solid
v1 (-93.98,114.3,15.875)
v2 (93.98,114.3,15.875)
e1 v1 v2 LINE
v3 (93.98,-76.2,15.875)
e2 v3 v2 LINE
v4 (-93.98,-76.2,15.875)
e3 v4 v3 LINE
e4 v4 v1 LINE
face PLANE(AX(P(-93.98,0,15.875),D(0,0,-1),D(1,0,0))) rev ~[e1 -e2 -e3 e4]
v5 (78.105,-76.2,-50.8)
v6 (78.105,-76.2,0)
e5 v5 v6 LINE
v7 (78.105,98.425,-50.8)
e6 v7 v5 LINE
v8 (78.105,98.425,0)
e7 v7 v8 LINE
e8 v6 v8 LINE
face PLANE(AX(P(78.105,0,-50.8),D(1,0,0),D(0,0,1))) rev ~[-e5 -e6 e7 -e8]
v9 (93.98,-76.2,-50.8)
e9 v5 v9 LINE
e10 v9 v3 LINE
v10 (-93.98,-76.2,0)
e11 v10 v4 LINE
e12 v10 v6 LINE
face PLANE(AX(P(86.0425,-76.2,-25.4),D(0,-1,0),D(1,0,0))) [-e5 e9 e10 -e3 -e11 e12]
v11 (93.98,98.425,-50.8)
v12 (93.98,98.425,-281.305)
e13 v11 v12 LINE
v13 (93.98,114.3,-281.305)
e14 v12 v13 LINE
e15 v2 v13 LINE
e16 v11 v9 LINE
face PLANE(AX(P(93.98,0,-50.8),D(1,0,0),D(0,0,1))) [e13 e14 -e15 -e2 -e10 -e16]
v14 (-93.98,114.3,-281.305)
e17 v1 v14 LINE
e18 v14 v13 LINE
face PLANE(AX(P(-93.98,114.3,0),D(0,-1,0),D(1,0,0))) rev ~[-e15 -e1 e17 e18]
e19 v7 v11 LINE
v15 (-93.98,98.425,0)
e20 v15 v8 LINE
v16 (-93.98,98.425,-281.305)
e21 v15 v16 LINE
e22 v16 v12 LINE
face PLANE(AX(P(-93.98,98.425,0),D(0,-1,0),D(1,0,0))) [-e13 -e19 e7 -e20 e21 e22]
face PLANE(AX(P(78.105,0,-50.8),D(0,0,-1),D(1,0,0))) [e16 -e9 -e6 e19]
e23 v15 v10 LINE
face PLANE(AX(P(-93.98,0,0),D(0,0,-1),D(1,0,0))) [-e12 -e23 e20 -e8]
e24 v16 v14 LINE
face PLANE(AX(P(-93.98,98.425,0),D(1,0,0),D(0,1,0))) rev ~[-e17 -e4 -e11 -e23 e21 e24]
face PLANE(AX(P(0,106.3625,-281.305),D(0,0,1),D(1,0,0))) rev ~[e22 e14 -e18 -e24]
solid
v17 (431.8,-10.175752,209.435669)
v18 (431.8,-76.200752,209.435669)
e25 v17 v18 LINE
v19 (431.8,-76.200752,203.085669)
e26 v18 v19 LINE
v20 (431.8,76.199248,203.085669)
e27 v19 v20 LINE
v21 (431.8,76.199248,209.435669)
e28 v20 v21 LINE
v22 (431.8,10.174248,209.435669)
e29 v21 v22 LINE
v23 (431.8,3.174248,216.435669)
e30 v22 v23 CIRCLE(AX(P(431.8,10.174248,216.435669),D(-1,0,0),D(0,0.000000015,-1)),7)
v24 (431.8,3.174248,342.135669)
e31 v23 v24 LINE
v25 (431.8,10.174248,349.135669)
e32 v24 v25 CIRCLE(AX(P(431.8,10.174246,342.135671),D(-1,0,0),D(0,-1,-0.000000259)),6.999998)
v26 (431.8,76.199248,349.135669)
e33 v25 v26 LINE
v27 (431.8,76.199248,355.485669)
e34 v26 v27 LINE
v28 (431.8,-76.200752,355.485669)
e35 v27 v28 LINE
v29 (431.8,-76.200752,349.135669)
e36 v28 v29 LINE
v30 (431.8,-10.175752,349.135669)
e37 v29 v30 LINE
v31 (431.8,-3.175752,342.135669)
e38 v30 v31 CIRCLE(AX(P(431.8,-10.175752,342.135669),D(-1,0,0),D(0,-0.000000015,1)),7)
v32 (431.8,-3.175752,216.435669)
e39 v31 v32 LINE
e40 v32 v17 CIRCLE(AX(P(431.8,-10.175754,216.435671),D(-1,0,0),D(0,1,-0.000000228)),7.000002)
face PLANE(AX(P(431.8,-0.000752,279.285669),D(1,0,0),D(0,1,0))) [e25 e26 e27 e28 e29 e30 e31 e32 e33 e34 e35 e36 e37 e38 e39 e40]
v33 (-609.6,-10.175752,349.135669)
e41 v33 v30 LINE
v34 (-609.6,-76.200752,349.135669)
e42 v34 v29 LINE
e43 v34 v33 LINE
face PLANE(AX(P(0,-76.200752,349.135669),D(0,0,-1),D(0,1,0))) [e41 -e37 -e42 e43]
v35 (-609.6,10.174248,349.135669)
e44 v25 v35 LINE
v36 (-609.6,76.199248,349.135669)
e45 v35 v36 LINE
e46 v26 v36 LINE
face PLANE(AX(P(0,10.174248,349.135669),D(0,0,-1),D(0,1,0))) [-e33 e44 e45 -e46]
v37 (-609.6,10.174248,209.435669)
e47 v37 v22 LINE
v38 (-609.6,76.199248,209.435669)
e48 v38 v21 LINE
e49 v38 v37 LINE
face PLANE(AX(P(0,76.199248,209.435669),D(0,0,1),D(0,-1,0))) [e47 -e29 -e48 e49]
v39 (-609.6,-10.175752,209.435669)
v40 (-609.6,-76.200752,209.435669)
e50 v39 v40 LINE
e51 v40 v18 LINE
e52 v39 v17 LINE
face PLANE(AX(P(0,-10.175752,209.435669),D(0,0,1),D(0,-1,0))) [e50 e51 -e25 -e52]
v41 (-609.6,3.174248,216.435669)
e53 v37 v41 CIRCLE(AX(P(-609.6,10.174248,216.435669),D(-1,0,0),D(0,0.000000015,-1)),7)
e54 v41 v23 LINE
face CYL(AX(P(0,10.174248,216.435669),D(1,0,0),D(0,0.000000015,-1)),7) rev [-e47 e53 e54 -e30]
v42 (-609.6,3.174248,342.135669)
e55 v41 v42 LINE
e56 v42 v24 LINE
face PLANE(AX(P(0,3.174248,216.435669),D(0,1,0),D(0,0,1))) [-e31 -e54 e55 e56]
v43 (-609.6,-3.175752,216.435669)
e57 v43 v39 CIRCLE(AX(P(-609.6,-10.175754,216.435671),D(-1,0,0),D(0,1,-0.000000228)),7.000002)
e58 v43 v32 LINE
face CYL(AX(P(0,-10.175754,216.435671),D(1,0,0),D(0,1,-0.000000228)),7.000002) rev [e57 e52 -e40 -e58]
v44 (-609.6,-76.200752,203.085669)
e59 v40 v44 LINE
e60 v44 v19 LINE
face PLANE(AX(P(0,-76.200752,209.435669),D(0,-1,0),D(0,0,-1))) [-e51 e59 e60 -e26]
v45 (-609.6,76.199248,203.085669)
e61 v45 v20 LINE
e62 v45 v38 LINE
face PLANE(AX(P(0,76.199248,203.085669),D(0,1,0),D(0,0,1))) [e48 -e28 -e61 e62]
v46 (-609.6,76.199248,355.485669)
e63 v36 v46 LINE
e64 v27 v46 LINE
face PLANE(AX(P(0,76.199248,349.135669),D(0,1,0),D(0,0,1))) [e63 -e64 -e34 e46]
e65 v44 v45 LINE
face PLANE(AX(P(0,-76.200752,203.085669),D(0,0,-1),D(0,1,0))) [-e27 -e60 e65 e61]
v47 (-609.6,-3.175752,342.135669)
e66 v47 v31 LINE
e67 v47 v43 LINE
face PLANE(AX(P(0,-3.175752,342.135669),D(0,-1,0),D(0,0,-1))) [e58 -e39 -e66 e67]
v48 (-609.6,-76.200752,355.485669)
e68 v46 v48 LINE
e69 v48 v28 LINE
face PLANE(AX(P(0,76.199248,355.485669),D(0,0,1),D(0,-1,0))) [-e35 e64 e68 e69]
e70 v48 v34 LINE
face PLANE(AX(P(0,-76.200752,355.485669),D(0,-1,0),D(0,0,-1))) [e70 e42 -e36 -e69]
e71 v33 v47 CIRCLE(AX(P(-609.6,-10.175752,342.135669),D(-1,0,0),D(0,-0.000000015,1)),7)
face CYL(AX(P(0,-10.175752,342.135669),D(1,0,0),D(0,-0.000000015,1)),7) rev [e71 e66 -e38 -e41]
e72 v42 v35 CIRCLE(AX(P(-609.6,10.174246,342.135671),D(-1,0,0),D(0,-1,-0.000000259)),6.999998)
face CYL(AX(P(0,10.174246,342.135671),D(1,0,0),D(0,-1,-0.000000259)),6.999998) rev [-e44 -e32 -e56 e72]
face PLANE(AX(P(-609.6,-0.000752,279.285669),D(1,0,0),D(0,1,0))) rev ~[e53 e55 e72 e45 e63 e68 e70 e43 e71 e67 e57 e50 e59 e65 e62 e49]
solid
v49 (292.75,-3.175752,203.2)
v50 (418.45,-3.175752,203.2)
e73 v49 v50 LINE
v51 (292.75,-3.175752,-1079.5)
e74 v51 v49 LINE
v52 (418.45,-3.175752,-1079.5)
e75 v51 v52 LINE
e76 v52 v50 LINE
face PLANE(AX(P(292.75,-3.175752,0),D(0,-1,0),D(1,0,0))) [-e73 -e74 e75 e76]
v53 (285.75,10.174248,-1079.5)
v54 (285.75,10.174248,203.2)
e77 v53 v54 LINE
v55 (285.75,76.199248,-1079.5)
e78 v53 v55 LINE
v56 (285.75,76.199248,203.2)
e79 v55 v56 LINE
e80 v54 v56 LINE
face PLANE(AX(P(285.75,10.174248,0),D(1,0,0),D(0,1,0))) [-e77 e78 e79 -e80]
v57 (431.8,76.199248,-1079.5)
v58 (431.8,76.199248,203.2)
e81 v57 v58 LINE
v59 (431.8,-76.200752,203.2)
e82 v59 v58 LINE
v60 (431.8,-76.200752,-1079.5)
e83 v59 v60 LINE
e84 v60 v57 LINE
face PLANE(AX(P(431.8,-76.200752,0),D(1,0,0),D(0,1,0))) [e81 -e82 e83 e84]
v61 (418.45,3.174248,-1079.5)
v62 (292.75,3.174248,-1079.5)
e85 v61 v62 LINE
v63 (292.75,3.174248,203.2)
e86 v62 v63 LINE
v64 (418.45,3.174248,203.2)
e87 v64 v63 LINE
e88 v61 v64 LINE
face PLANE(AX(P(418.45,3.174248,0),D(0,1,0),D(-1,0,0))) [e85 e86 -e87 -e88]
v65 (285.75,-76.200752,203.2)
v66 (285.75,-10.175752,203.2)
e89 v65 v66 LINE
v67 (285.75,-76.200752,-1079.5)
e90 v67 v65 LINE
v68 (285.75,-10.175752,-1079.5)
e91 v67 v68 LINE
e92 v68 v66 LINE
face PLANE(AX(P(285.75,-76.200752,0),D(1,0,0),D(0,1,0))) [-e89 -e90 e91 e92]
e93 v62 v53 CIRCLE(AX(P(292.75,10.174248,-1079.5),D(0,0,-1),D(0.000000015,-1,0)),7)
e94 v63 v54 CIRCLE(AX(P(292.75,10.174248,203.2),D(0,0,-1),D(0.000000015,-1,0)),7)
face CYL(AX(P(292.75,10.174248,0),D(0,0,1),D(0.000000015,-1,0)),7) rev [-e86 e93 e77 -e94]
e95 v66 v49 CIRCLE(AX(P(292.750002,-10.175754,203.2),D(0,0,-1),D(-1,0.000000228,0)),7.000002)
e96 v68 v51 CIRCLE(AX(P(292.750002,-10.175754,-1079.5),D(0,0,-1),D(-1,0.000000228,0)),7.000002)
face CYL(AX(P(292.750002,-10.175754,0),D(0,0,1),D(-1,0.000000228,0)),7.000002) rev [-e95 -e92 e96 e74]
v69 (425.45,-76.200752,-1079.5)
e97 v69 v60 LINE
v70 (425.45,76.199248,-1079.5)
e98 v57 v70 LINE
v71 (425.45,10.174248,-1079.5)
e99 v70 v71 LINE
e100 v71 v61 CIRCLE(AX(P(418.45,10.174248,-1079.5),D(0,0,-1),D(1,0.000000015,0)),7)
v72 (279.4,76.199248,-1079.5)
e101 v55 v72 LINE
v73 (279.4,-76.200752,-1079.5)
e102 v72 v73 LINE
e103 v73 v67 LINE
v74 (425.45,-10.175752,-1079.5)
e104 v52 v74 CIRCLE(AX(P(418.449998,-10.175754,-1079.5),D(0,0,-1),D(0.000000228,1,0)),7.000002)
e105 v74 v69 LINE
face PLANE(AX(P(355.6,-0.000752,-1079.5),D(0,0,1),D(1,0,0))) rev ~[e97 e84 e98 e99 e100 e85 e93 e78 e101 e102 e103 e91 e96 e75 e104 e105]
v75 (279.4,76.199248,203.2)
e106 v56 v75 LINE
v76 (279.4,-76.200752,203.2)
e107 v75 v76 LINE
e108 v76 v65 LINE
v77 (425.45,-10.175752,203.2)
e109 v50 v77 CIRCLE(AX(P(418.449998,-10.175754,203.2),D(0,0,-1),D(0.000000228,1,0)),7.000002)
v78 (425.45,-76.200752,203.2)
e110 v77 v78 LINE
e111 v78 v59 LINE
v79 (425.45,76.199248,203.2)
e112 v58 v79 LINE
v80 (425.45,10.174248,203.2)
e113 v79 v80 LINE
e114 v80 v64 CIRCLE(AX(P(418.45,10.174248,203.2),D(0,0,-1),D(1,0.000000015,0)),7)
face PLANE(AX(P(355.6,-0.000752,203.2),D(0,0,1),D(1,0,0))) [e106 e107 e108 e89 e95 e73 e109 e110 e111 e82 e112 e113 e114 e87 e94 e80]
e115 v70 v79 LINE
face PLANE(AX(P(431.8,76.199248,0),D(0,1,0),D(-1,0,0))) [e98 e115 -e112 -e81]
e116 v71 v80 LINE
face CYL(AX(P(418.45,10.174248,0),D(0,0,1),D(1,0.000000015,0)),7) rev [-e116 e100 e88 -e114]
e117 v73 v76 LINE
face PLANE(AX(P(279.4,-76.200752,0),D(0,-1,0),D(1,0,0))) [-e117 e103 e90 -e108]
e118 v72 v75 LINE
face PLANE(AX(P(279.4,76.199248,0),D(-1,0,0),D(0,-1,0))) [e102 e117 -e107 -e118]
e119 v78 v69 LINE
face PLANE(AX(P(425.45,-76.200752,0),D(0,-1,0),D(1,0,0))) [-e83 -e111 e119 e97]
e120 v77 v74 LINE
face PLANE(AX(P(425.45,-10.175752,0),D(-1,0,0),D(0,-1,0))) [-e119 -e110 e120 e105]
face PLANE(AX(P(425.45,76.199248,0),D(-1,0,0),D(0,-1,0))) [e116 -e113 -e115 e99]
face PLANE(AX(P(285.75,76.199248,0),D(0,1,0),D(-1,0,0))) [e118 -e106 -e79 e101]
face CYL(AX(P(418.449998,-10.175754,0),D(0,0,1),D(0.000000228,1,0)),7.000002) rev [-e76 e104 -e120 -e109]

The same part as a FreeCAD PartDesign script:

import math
import FreeCAD as App
import Part
import Sketcher

V = App.Vector
Q = App.Units.Quantity


def add_polygon(sketch, points):
    """Adds a closed chain of lines whose ends are joined by coincident constraints."""
    first, n = sketch.GeometryCount, len(points)
    for a, b in zip(points, points[1:] + points[:1]):
        sketch.addGeometry(Part.LineSegment(App.Vector(*a, 0), App.Vector(*b, 0)), False)
    for i in range(n):
        sketch.addConstraint(Sketcher.Constraint("Coincident", first + i, 2, first + (i + 1) % n, 1))

doc = App.newDocument("Part")
body = doc.addObject("PartDesign::Body", "Body")

# Sketch on YZ plane
sketch1 = doc.addObject("Sketcher::SketchObject", "Sketch")
body.addObject(sketch1)
sketch1.AttachmentSupport = (doc.YZ_Plane, [""])
sketch1.MapMode = "FlatFace"
sketch1.addGeometry([
    Part.LineSegment(V(76, 355, 0), V(-76, 355, 0)),  # 0
    Part.LineSegment(V(-76, 355, 0), V(-76, 349, 0)),  # 1
    Part.LineSegment(V(-76, 349, 0), V(-10, 349, 0)),  # 2
    Part.ArcOfCircle(Part.Circle(V(-10, 342, 0), V(0, 0, 1), 7), math.radians(0), math.radians(90)),  # 3
    Part.LineSegment(V(-3, 342, 0), V(-3, 216, 0)),  # 4
    Part.ArcOfCircle(Part.Circle(V(-10, 216, 0), V(0, 0, 1), 7), math.radians(-90), math.radians(0)),  # 5
    Part.LineSegment(V(-10, 209, 0), V(-76, 209, 0)),  # 6
    Part.LineSegment(V(-76, 209, 0), V(-76, 203, 0)),  # 7
    Part.LineSegment(V(-76, 203, 0), V(76, 203, 0)),  # 8
    Part.LineSegment(V(76, 203, 0), V(76, 209, 0)),  # 9
    Part.LineSegment(V(76, 209, 0), V(10, 209, 0)),  # 10
    Part.ArcOfCircle(Part.Circle(V(10, 216, 0), V(0, 0, 1), 7), math.radians(180), math.radians(270)),  # 11
    Part.LineSegment(V(3, 216, 0), V(3, 342, 0)),  # 12
    Part.ArcOfCircle(Part.Circle(V(10, 342, 0), V(0, 0, 1), 7), math.radians(90), math.radians(180)),  # 13
    Part.LineSegment(V(10, 349, 0), V(76, 349, 0)),  # 14
    Part.LineSegment(V(76, 349, 0), V(76, 355, 0)),  # 15
], False)
sketch1.addConstraint([
    Sketcher.Constraint("Coincident", 0, 2, 1, 1),
    Sketcher.Constraint("Coincident", 1, 2, 2, 1),
    Sketcher.Constraint("Tangent", 2, 2, 3, 2),
    Sketcher.Constraint("Tangent", 3, 1, 4, 1),
    Sketcher.Constraint("Tangent", 4, 2, 5, 2),
    Sketcher.Constraint("Tangent", 5, 1, 6, 1),
    Sketcher.Constraint("Coincident", 6, 2, 7, 1),
    Sketcher.Constraint("Coincident", 7, 2, 8, 1),
    Sketcher.Constraint("Coincident", 8, 2, 9, 1),
    Sketcher.Constraint("Coincident", 9, 2, 10, 1),
    Sketcher.Constraint("Tangent", 10, 2, 11, 2),
    Sketcher.Constraint("Tangent", 11, 1, 12, 1),
    Sketcher.Constraint("Tangent", 12, 2, 13, 2),
    Sketcher.Constraint("Tangent", 13, 1, 14, 1),
    Sketcher.Constraint("Coincident", 14, 2, 15, 1),
    Sketcher.Constraint("Coincident", 15, 2, 0, 1),
    Sketcher.Constraint("Horizontal", 0),
    Sketcher.Constraint("Vertical", 1),
    Sketcher.Constraint("Horizontal", 2),
    Sketcher.Constraint("Vertical", 4),
    Sketcher.Constraint("Horizontal", 6),
    Sketcher.Constraint("Vertical", 7),
    Sketcher.Constraint("Horizontal", 8),
    Sketcher.Constraint("Vertical", 9),
    Sketcher.Constraint("Horizontal", 10),
    Sketcher.Constraint("Vertical", 12),
    Sketcher.Constraint("Horizontal", 14),
    Sketcher.Constraint("Vertical", 15),
    Sketcher.Constraint("Equal", 3, 5),
    Sketcher.Constraint("Equal", 5, 11),
    Sketcher.Constraint("Equal", 11, 13),
    Sketcher.Constraint("Horizontal", 5, 3, 11, 3),
    Sketcher.Constraint("Horizontal", 3, 3, 13, 3),
    Sketcher.Constraint("Vertical", 1, 2, 6, 2),
    Sketcher.Constraint("Vertical", 9, 2, 14, 2),
    Sketcher.Constraint("Equal", 6, 10),
    Sketcher.Constraint("Equal", 1, 7),
    Sketcher.Constraint("DistanceX", 0, 2, 0, 1, Q("6 in")),
    Sketcher.Constraint("DistanceY", 1, 2, 1, 1, Q("0.25 in")),
    Sketcher.Constraint("DistanceY", 6, 2, 1, 2, Q("5.5 in")),
    Sketcher.Constraint("Radius", 3, 7.0),
    Sketcher.Constraint("DistanceX", 4, 2, 11, 1, Q("0.25 in")),
    Sketcher.Constraint("DistanceX", 3, 3, -1, 1, 10.175752),
    Sketcher.Constraint("DistanceY", -1, 1, 3, 3, 342.135669),
])
pad1 = doc.addObject("PartDesign::Pad", "Pad")
body.addObject(pad1)
pad1.Profile = sketch1
pad1.Type = "TwoLengths"
pad1.Length = Q("17 in")
pad1.Length2 = Q("24 in")
body2 = doc.addObject("PartDesign::Body", "Body001")

# Sketch on XY plane
sketch2 = doc.addObject("Sketcher::SketchObject", "Sketch001")
body2.addObject(sketch2)
sketch2.AttachmentSupport = (doc.getObject("XY_Plane001"), [""])
sketch2.MapMode = "FlatFace"
sketch2.addGeometry([
    Part.LineSegment(V(432, -76, 0), V(432, 76, 0)),  # 0
    Part.LineSegment(V(432, 76, 0), V(425, 76, 0)),  # 1
    Part.LineSegment(V(425, 76, 0), V(425, 10, 0)),  # 2
    Part.ArcOfCircle(Part.Circle(V(418, 10, 0), V(0, 0, 1), 7), math.radians(-90), math.radians(0)),  # 3
    Part.LineSegment(V(418, 3, 0), V(293, 3, 0)),  # 4
    Part.ArcOfCircle(Part.Circle(V(293, 10, 0), V(0, 0, 1), 7), math.radians(180), math.radians(270)),  # 5
    Part.LineSegment(V(286, 10, 0), V(286, 76, 0)),  # 6
    Part.LineSegment(V(286, 76, 0), V(279, 76, 0)),  # 7
    Part.LineSegment(V(279, 76, 0), V(279, -76, 0)),  # 8
    Part.LineSegment(V(279, -76, 0), V(286, -76, 0)),  # 9
    Part.LineSegment(V(286, -76, 0), V(286, -10, 0)),  # 10
    Part.ArcOfCircle(Part.Circle(V(293, -10, 0), V(0, 0, 1), 7), math.radians(90), math.radians(180)),  # 11
    Part.LineSegment(V(293, -3, 0), V(418, -3, 0)),  # 12
    Part.ArcOfCircle(Part.Circle(V(418, -10, 0), V(0, 0, 1), 7), math.radians(0), math.radians(90)),  # 13
    Part.LineSegment(V(425, -10, 0), V(425, -76, 0)),  # 14
    Part.LineSegment(V(425, -76, 0), V(432, -76, 0)),  # 15
], False)
sketch2.addConstraint([
    Sketcher.Constraint("Coincident", 0, 2, 1, 1),
    Sketcher.Constraint("Coincident", 1, 2, 2, 1),
    Sketcher.Constraint("Tangent", 2, 2, 3, 2),
    Sketcher.Constraint("Tangent", 3, 1, 4, 1),
    Sketcher.Constraint("Tangent", 4, 2, 5, 2),
    Sketcher.Constraint("Tangent", 5, 1, 6, 1),
    Sketcher.Constraint("Coincident", 6, 2, 7, 1),
    Sketcher.Constraint("Coincident", 7, 2, 8, 1),
    Sketcher.Constraint("Coincident", 8, 2, 9, 1),
    Sketcher.Constraint("Coincident", 9, 2, 10, 1),
    Sketcher.Constraint("Tangent", 10, 2, 11, 2),
    Sketcher.Constraint("Tangent", 11, 1, 12, 1),
    Sketcher.Constraint("Tangent", 12, 2, 13, 2),
    Sketcher.Constraint("Tangent", 13, 1, 14, 1),
    Sketcher.Constraint("Coincident", 14, 2, 15, 1),
    Sketcher.Constraint("Coincident", 15, 2, 0, 1),
    Sketcher.Constraint("Vertical", 0),
    Sketcher.Constraint("Horizontal", 1),
    Sketcher.Constraint("Vertical", 2),
    Sketcher.Constraint("Horizontal", 4),
    Sketcher.Constraint("Vertical", 6),
    Sketcher.Constraint("Horizontal", 7),
    Sketcher.Constraint("Vertical", 8),
    Sketcher.Constraint("Horizontal", 9),
    Sketcher.Constraint("Vertical", 10),
    Sketcher.Constraint("Horizontal", 12),
    Sketcher.Constraint("Vertical", 14),
    Sketcher.Constraint("Horizontal", 15),
    Sketcher.Constraint("Equal", 3, 5),
    Sketcher.Constraint("Equal", 5, 11),
    Sketcher.Constraint("Equal", 11, 13),
    Sketcher.Constraint("Horizontal", 1, 2, 6, 2),
    Sketcher.Constraint("Horizontal", 9, 2, 14, 2),
    Sketcher.Constraint("Vertical", 5, 3, 11, 3),
    Sketcher.Constraint("Vertical", 3, 3, 13, 3),
    Sketcher.Constraint("Equal", 1, 7),
    Sketcher.Constraint("Equal", 6, 10),
    Sketcher.Constraint("DistanceY", 0, 1, 0, 2, Q("6 in")),
    Sketcher.Constraint("DistanceX", -1, 1, 0, 2, Q("17 in")),
    Sketcher.Constraint("DistanceX", -1, 1, 7, 2, Q("11 in")),
    Sketcher.Constraint("DistanceX", 1, 2, 1, 1, Q("0.25 in")),
    Sketcher.Constraint("Radius", 3, 7.0),
    Sketcher.Constraint("DistanceY", 11, 1, 4, 2, Q("0.25 in")),
    Sketcher.Constraint("DistanceY", -1, 1, 3, 1, 3.174248),
])
pad2 = doc.addObject("PartDesign::Pad", "Pad001")
body2.addObject(pad2)
pad2.Profile = sketch2
pad2.Type = "TwoLengths"
pad2.Length = Q("8 in")
pad2.Length2 = Q("42.5 in")
body3 = doc.addObject("PartDesign::Body", "Body002")

# Sketch on XZ plane
sketch3 = doc.addObject("Sketcher::SketchObject", "Sketch002")
body3.addObject(sketch3)
sketch3.AttachmentSupport = (doc.getObject("XZ_Plane002"), [""])
sketch3.MapMode = "FlatFace"
add_polygon(sketch3, [(-94, 16), (-94, 0), (94, 0), (94, 16)])  # lines 0-3
sketch3.addConstraint([
    Sketcher.Constraint("Vertical", 0),
    Sketcher.Constraint("Horizontal", 1),
    Sketcher.Constraint("Vertical", 2),
    Sketcher.Constraint("Horizontal", 3),
    Sketcher.Constraint("Symmetric", 0, 2, 1, 2, -1, 1),
    Sketcher.Constraint("DistanceX", 1, 1, 1, 2, Q("7.4 in")),
    Sketcher.Constraint("DistanceY", 0, 2, 0, 1, Q("0.625 in")),
])
pad3 = doc.addObject("PartDesign::Pad", "Pad002")
body3.addObject(pad3)
pad3.Profile = sketch3
pad3.Type = "TwoLengths"
pad3.Length = Q("3 in")
pad3.Length2 = Q("4.5 in")

# Sketch on XY plane
sketch4 = doc.addObject("Sketcher::SketchObject", "Sketch003")
body3.addObject(sketch4)
sketch4.AttachmentSupport = (doc.getObject("XY_Plane002"), [""])
sketch4.MapMode = "FlatFace"
add_polygon(sketch4, [(-94, 114), (-94, 98), (94, 98), (94, 114)])  # lines 0-3
sketch4.addConstraint([
    Sketcher.Constraint("Vertical", 0),
    Sketcher.Constraint("Horizontal", 1),
    Sketcher.Constraint("Vertical", 2),
    Sketcher.Constraint("Horizontal", 3),
    Sketcher.Constraint("DistanceX", 1, 1, 1, 2, Q("7.4 in")),
    Sketcher.Constraint("DistanceX", 0, 2, -1, 1, Q("3.7 in")),
    Sketcher.Constraint("DistanceY", -1, 1, 2, 2, Q("4.5 in")),
    Sketcher.Constraint("DistanceY", 0, 2, 0, 1, Q("0.625 in")),
])
pad4 = doc.addObject("PartDesign::Pad", "Pad003")
body3.addObject(pad4)
pad4.Profile = sketch4
pad4.Length = Q("11.075 in")
pad4.Reversed = True

# Sketch on XZ plane
sketch5 = doc.addObject("Sketcher::SketchObject", "Sketch004")
body3.addObject(sketch5)
sketch5.AttachmentSupport = (doc.getObject("XZ_Plane002"), [""])
sketch5.MapMode = "FlatFace"
add_polygon(sketch5, [(78, 0), (78, -51), (94, -51), (94, 0)])  # lines 0-3
sketch5.addConstraint([
    Sketcher.Constraint("Vertical", 0),
    Sketcher.Constraint("Horizontal", 1),
    Sketcher.Constraint("Vertical", 2),
    Sketcher.Constraint("Horizontal", 3),
    Sketcher.Constraint("PointOnObject", 2, 2, -1),
    Sketcher.Constraint("DistanceY", 0, 2, 0, 1, Q("2 in")),
    Sketcher.Constraint("DistanceX", -1, 1, 1, 2, Q("3.7 in")),
    Sketcher.Constraint("DistanceX", 1, 1, 1, 2, Q("0.625 in")),
])
pad5 = doc.addObject("PartDesign::Pad", "Pad004")
body3.addObject(pad5)
pad5.Profile = sketch5
pad5.Type = "TwoLengths"
pad5.Length = Q("3 in")
pad5.Length2 = Q("3.875 in")

doc.recompute()
